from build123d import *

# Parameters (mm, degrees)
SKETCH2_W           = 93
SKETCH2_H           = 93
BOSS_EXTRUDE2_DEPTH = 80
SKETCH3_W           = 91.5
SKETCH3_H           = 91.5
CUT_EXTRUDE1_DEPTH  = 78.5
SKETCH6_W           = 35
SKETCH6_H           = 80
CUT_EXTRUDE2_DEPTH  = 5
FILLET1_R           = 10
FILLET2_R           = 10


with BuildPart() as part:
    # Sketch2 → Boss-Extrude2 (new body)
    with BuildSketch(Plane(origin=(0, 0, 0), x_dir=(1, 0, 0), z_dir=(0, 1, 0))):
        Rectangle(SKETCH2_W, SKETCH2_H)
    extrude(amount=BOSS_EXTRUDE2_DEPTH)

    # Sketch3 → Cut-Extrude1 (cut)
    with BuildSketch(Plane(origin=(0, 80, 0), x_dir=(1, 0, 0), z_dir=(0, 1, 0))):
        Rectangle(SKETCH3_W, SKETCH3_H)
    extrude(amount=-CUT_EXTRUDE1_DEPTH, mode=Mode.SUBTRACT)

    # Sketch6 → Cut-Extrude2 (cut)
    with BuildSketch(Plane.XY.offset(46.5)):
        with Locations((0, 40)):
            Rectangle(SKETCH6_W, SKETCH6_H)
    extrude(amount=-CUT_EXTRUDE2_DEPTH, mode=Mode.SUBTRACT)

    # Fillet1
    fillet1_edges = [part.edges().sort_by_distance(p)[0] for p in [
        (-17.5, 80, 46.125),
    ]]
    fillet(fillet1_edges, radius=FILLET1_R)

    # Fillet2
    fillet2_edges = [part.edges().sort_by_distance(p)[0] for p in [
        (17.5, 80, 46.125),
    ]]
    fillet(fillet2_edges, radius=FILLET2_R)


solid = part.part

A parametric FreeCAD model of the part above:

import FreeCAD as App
import Part
import Sketcher

V = App.Vector
Q = App.Units.Quantity


def edges_at(feature, points):
    """Names of the edges that pass closest to the given points."""
    edges = feature.Shape.Edges
    near = lambda p: min(range(len(edges)), key=lambda i: edges[i].distToShape(Part.Vertex(*p))[0])
    return sorted({f"Edge{near(p) + 1}" for p in points})

doc = App.newDocument("Part")
body = doc.addObject("PartDesign::Body", "Body")

# Sketch on XZ plane
sketch1 = body.newObject("Sketcher::SketchObject", "Sketch")
sketch1.AttachmentSupport = (doc.getObject("XZ_Plane"), [""])
sketch1.MapMode = "FlatFace"
sketch1.addGeometry(Part.LineSegment(V(-46, -46, 0), V(-46, 46, 0)), False)
sketch1.addGeometry(Part.LineSegment(V(-46, 46, 0), V(46, 46, 0)), False)
sketch1.addGeometry(Part.LineSegment(V(46, 46, 0), V(46, -46, 0)), False)
sketch1.addGeometry(Part.LineSegment(V(46, -46, 0), V(-46, -46, 0)), False)
sketch1.addConstraint(Sketcher.Constraint("Coincident", 0, 2, 1, 1))
sketch1.addConstraint(Sketcher.Constraint("Coincident", 1, 2, 2, 1))
sketch1.addConstraint(Sketcher.Constraint("Coincident", 2, 2, 3, 1))
sketch1.addConstraint(Sketcher.Constraint("Coincident", 3, 2, 0, 1))
sketch1.addConstraint(Sketcher.Constraint("Vertical", 0))
sketch1.addConstraint(Sketcher.Constraint("Horizontal", 1))
sketch1.addConstraint(Sketcher.Constraint("Vertical", 2))
sketch1.addConstraint(Sketcher.Constraint("Horizontal", 3))
sketch1.addConstraint(Sketcher.Constraint("Symmetric", 0, 2, 2, 2, -1, 1))
sketch1.addConstraint(Sketcher.Constraint("Equal", 3, 0))
sketch1.addConstraint(Sketcher.Constraint("DistanceX", 1, 1, 1, 2, Q("93 mm")))
pad1 = body.newObject("PartDesign::Pad", "Pad")
pad1.Profile = sketch1
pad1.Length = 80
pad1.Reversed = True

# Sketch on XZ plane
sketch2 = body.newObject("Sketcher::SketchObject", "Sketch001")
sketch2.AttachmentSupport = (doc.getObject("XZ_Plane"), [""])
sketch2.MapMode = "FlatFace"
sketch2.AttachmentOffset = App.Placement(V(0, 0, -80), App.Rotation())
sketch2.addGeometry(Part.LineSegment(V(-46, -46, 0), V(-46, 46, 0)), False)
sketch2.addGeometry(Part.LineSegment(V(-46, 46, 0), V(46, 46, 0)), False)
sketch2.addGeometry(Part.LineSegment(V(46, 46, 0), V(46, -46, 0)), False)
sketch2.addGeometry(Part.LineSegment(V(46, -46, 0), V(-46, -46, 0)), False)
sketch2.addConstraint(Sketcher.Constraint("Coincident", 0, 2, 1, 1))
sketch2.addConstraint(Sketcher.Constraint("Coincident", 1, 2, 2, 1))
sketch2.addConstraint(Sketcher.Constraint("Coincident", 2, 2, 3, 1))
sketch2.addConstraint(Sketcher.Constraint("Coincident", 3, 2, 0, 1))
sketch2.addConstraint(Sketcher.Constraint("Vertical", 0))
sketch2.addConstraint(Sketcher.Constraint("Horizontal", 1))
sketch2.addConstraint(Sketcher.Constraint("Vertical", 2))
sketch2.addConstraint(Sketcher.Constraint("Horizontal", 3))
sketch2.addConstraint(Sketcher.Constraint("Symmetric", 0, 2, 2, 2, -1, 1))
sketch2.addConstraint(Sketcher.Constraint("Equal", 3, 0))
sketch2.addConstraint(Sketcher.Constraint("DistanceX", 1, 1, 1, 2, Q("91.5 mm")))
pocket1 = body.newObject("PartDesign::Pocket", "Pocket")
pocket1.Profile = sketch2
pocket1.Length = 78.5
pocket1.Reversed = True

# Sketch on XY plane
sketch3 = body.newObject("Sketcher::SketchObject", "Sketch002")
sketch3.AttachmentSupport = (doc.getObject("XY_Plane"), [""])
sketch3.MapMode = "FlatFace"
sketch3.AttachmentOffset = App.Placement(V(0, 0, 46.5), App.Rotation())
sketch3.addGeometry(Part.LineSegment(V(-18, 80, 0), V(-18, 0, 0)), False)
sketch3.addGeometry(Part.LineSegment(V(-18, 0, 0), V(18, 0, 0)), False)
sketch3.addGeometry(Part.LineSegment(V(18, 0, 0), V(18, 80, 0)), False)
sketch3.addGeometry(Part.LineSegment(V(18, 80, 0), V(-18, 80, 0)), False)
sketch3.addConstraint(Sketcher.Constraint("Coincident", 0, 2, 1, 1))
sketch3.addConstraint(Sketcher.Constraint("Coincident", 1, 2, 2, 1))
sketch3.addConstraint(Sketcher.Constraint("Coincident", 2, 2, 3, 1))
sketch3.addConstraint(Sketcher.Constraint("Coincident", 3, 2, 0, 1))
sketch3.addConstraint(Sketcher.Constraint("Vertical", 0))
sketch3.addConstraint(Sketcher.Constraint("Horizontal", 1))
sketch3.addConstraint(Sketcher.Constraint("Vertical", 2))
sketch3.addConstraint(Sketcher.Constraint("Horizontal", 3))
sketch3.addConstraint(Sketcher.Constraint("Symmetric", 0, 2, 1, 2, -1, 1))
sketch3.addConstraint(Sketcher.Constraint("DistanceX", 1, 1, 1, 2, Q("35 mm")))
sketch3.addConstraint(Sketcher.Constraint("DistanceY", 0, 2, 0, 1, Q("80 mm")))
pocket2 = body.newObject("PartDesign::Pocket", "Pocket001")
pocket2.Profile = sketch3
pocket2.Length = 5
doc.recompute()

fillet = body.newObject("PartDesign::Fillet", "Fillet")
fillet.Base = (pocket2, edges_at(pocket2, [(-17.5, 80, 46.125)]))
fillet.Radius = 10
doc.recompute()

fillet2 = body.newObject("PartDesign::Fillet", "Fillet001")
fillet2.Base = (fillet, edges_at(fillet, [(17.5, 80, 46.125)]))
fillet2.Radius = 10

doc.recompute()
